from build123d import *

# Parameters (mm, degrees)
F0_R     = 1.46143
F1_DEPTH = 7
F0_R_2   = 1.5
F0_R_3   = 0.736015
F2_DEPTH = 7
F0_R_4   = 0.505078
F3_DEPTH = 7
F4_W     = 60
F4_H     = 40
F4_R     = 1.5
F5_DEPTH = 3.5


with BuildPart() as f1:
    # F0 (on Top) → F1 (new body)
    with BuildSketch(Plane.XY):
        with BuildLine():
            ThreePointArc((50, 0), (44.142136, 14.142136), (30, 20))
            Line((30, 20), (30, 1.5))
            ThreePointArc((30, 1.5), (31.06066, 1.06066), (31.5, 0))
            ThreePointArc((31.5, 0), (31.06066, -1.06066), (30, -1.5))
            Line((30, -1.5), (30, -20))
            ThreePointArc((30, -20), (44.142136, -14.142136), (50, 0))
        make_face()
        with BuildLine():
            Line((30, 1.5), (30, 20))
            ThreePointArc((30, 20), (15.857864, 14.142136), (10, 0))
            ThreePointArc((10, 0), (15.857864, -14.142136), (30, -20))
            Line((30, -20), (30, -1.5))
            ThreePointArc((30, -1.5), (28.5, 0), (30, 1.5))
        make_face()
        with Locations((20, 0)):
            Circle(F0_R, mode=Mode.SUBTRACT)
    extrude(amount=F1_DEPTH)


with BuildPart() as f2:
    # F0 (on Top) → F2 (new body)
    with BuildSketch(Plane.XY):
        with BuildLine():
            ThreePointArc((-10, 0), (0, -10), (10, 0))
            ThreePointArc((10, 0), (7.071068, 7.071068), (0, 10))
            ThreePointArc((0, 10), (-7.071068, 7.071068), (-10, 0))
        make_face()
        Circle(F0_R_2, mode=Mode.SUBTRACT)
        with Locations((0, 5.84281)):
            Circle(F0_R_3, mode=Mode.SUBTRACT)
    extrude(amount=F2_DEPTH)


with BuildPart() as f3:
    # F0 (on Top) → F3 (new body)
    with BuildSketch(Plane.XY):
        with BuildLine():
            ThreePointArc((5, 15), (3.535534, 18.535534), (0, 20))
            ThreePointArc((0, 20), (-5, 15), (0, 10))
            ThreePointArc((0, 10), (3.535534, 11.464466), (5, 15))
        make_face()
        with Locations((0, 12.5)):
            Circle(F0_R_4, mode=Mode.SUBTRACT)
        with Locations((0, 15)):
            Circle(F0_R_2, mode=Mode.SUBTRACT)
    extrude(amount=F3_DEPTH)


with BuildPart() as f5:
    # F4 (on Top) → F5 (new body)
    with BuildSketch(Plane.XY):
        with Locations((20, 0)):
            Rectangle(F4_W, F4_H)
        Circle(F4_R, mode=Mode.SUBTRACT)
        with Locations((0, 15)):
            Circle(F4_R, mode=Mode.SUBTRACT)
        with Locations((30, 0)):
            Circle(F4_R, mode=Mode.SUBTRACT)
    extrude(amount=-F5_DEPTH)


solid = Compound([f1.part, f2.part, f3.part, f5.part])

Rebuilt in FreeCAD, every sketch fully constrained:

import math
import FreeCAD as App
import Part
import Sketcher

V = App.Vector


def add_polygon(sketch, points):
    """Adds a closed chain of lines whose ends are joined by coincident constraints."""
    first, n = sketch.GeometryCount, len(points)
    for a, b in zip(points, points[1:] + points[:1]):
        sketch.addGeometry(Part.LineSegment(App.Vector(*a, 0), App.Vector(*b, 0)), False)
    for i in range(n):
        sketch.addConstraint(Sketcher.Constraint("Coincident", first + i, 2, first + (i + 1) % n, 1))

doc = App.newDocument("Part")
params = doc.addObject("Spreadsheet::Sheet", "Params")
for row, (alias, value) in enumerate([
    ("sketch1_radius", "19.999999 mm"),
    ("sketch1_radius2", "1.500001 mm"),
    ("pad1_length", "7 mm"),
    ("sketch2_diameter", "3 mm"),
    ("sketch2_radius", "10 mm"),
    ("pad2_length", "7 mm"),
    ("sketch3_diameter", "3 mm"),
    ("sketch3_radius", "5 mm"),
    ("pad3_length", "7 mm"),
    ("sketch4_diameter", "3 mm"),
    ("sketch4_width", "60 mm"),
    ("sketch4_height", "40 mm"),
    ("pad4_length", "3.5 mm"),
], start=1):
    params.set(f"A{row}", alias)
    params.set(f"B{row}", "=" + value)
    params.setAlias(f"B{row}", alias)

body = doc.addObject("PartDesign::Body", "Body")

# Sketch on XY plane
sketch1 = doc.addObject("Sketcher::SketchObject", "Sketch")
body.addObject(sketch1)
sketch1.AttachmentSupport = (doc.XY_Plane, [""])
sketch1.MapMode = "FlatFace"
sketch1.addGeometry([
    Part.ArcOfCircle(Part.Circle(V(30.000001, 0.000001, 0), V(0, 0, 1), 19.999999), math.radians(-0.000004), math.radians(90.000004)),  # 0
    Part.ArcOfCircle(Part.Circle(V(29.999999, 0.000001, 0), V(0, 0, 1), 19.999999), math.radians(89.999996), math.radians(180.000004)),  # 1
    Part.ArcOfCircle(Part.Circle(V(29.999999, -0.000001, 0), V(0, 0, 1), 19.999999), math.radians(179.999996), math.radians(270.000004)),  # 2
    Part.ArcOfCircle(Part.Circle(V(30.000001, -0.000001, 0), V(0, 0, 1), 19.999999), math.radians(-90.000004), math.radians(0.000004)),  # 3
    Part.Circle(V(20, 0, 0), V(0, 0, 1), 1.46143),  # 4
    Part.ArcOfCircle(Part.Circle(V(29.999999, -0.000001, 0), V(0, 0, 1), 1.500001), math.radians(0.000022), math.radians(89.999978)),  # 5
    Part.ArcOfCircle(Part.Circle(V(29.999999, 0.000001, 0), V(0, 0, 1), 1.500001), math.radians(-89.999978), math.radians(-0.000022)),  # 6
    Part.ArcOfCircle(Part.Circle(V(30, 0, 0), V(0, 0, 1), 1.5), math.radians(90), math.radians(270)),  # 7
], False)
sketch1.addConstraint([
    Sketcher.Constraint("Tangent", 0, 2, 1, 1),
    Sketcher.Constraint("Tangent", 1, 2, 2, 1),
    Sketcher.Constraint("Tangent", 2, 2, 3, 1),
    Sketcher.Constraint("Tangent", 3, 2, 0, 1),
    Sketcher.Constraint("Tangent", 5, 1, 6, 2),
    Sketcher.Constraint("Tangent", 6, 1, 7, 2),
    Sketcher.Constraint("Tangent", 7, 1, 5, 2),
    Sketcher.Constraint("Coincident", 5, 3, 0, 3),
    Sketcher.Constraint("Equal", 0, 1),
    Sketcher.Constraint("Symmetric", 0, 2, 2, 2, -1),
    Sketcher.Constraint("PointOnObject", 4, 3, -1),
    Sketcher.Constraint("PointOnObject", 1, 2, -1),
    Sketcher.Constraint("PointOnObject", 3, 2, -1),
    Sketcher.Constraint("PointOnObject", 5, 1, -1),
    Sketcher.Constraint("Vertical", 7, 3, 0, 2),
    Sketcher.Constraint("Vertical", 2, 2, 6, 1),
    Sketcher.Constraint("Vertical", 6, 1, 7, 1),
    Sketcher.Constraint("Radius", 0, 19.999999),
    Sketcher.Constraint("Radius", 5, 1.500001),
    Sketcher.Constraint("DistanceX", -1, 1, 0, 3, 30.000001),
    Sketcher.Constraint("DistanceX", -1, 1, 4, 3, 20.0),
    Sketcher.Constraint("Diameter", 4, 2.92286),
])
sketch1.setExpression("Constraints[17]", "Params.sketch1_radius")
sketch1.setExpression("Constraints[18]", "Params.sketch1_radius2")
pad1 = doc.addObject("PartDesign::Pad", "Pad")
body.addObject(pad1)
pad1.Profile = sketch1
pad1.setExpression("Length", "Params.pad1_length")
body2 = doc.addObject("PartDesign::Body", "Body001")

# Sketch on XY plane
sketch2 = doc.addObject("Sketcher::SketchObject", "Sketch001")
body2.addObject(sketch2)
sketch2.AttachmentSupport = (doc.getObject("XY_Plane001"), [""])
sketch2.MapMode = "FlatFace"
sketch2.addGeometry([
    Part.ArcOfCircle(Part.Circle(V(0, 0, 0), V(0, 0, 1), 10), math.radians(180), math.radians(360)),  # 0
    Part.ArcOfCircle(Part.Circle(V(0.000001, 0.000001, 0), V(0, 0, 1), 9.999999), math.radians(-0.000004), math.radians(90.000004)),  # 1
    Part.ArcOfCircle(Part.Circle(V(-0.000001, 0.000001, 0), V(0, 0, 1), 9.999999), math.radians(89.999996), math.radians(180.000004)),  # 2
    Part.Circle(V(0, 0, 0), V(0, 0, 1), 1.5),  # 3
    Part.Circle(V(0, 5.84281, 0), V(0, 0, 1), 0.736015),  # 4
], False)
sketch2.addConstraint([
    Sketcher.Constraint("Tangent", 0, 2, 1, 1),
    Sketcher.Constraint("Tangent", 1, 2, 2, 1),
    Sketcher.Constraint("Tangent", 2, 2, 0, 1),
    Sketcher.Constraint("Coincident", 0, 3, -1, 1),
    Sketcher.Constraint("Coincident", 3, 3, -1, 1),
    Sketcher.Constraint("PointOnObject", 4, 3, -2),
    Sketcher.Constraint("PointOnObject", 0, 2, -1),
    Sketcher.Constraint("PointOnObject", 1, 2, -2),
    Sketcher.Constraint("PointOnObject", 2, 2, -1),
    Sketcher.Constraint("Diameter", 3, 3.0),
    Sketcher.Constraint("Radius", 0, 10.0),
    Sketcher.Constraint("Diameter", 4, 1.47203),
    Sketcher.Constraint("DistanceY", -1, 1, 4, 3, 5.84281),
])
sketch2.setExpression("Constraints[9]", "Params.sketch2_diameter")
sketch2.setExpression("Constraints[10]", "Params.sketch2_radius")
pad2 = doc.addObject("PartDesign::Pad", "Pad001")
body2.addObject(pad2)
pad2.Profile = sketch2
pad2.setExpression("Length", "Params.pad2_length")
body3 = doc.addObject("PartDesign::Body", "Body002")

# Sketch on XY plane
sketch3 = doc.addObject("Sketcher::SketchObject", "Sketch002")
body3.addObject(sketch3)
sketch3.AttachmentSupport = (doc.getObject("XY_Plane002"), [""])
sketch3.MapMode = "FlatFace"
sketch3.addGeometry([
    Part.ArcOfCircle(Part.Circle(V(0, 15, 0), V(0, 0, 1), 5), math.radians(-0.000004), math.radians(90.000004)),  # 0
    Part.ArcOfCircle(Part.Circle(V(0, 15, 0), V(0, 0, 1), 5), math.radians(90), math.radians(270)),  # 1
    Part.ArcOfCircle(Part.Circle(V(0, 15, 0), V(0, 0, 1), 5), math.radians(-90.000004), math.radians(0.000004)),  # 2
    Part.Circle(V(0, 12.5, 0), V(0, 0, 1), 0.505078),  # 3
    Part.Circle(V(0, 15, 0), V(0, 0, 1), 1.5),  # 4
], False)
sketch3.addConstraint([
    Sketcher.Constraint("Tangent", 0, 2, 1, 1),
    Sketcher.Constraint("Tangent", 1, 2, 2, 1),
    Sketcher.Constraint("Tangent", 2, 2, 0, 1),
    Sketcher.Constraint("Coincident", 4, 3, 0, 3),
    Sketcher.Constraint("PointOnObject", 0, 3, -2),
    Sketcher.Constraint("PointOnObject", 3, 3, -2),
    Sketcher.Constraint("PointOnObject", 0, 2, -2),
    Sketcher.Constraint("PointOnObject", 1, 2, -2),
    Sketcher.Constraint("Horizontal", 4, 3, 2, 2),
    Sketcher.Constraint("Diameter", 4, 3.0),
    Sketcher.Constraint("Radius", 0, 5.0),
    Sketcher.Constraint("DistanceY", -1, 1, 0, 3, 15.0),
    Sketcher.Constraint("DistanceY", -1, 1, 3, 3, 12.5),
    Sketcher.Constraint("Diameter", 3, 1.010156),
])
sketch3.setExpression("Constraints[9]", "Params.sketch3_diameter")
sketch3.setExpression("Constraints[10]", "Params.sketch3_radius")
pad3 = doc.addObject("PartDesign::Pad", "Pad002")
body3.addObject(pad3)
pad3.Profile = sketch3
pad3.setExpression("Length", "Params.pad3_length")
body4 = doc.addObject("PartDesign::Body", "Body003")

# Sketch on XY plane
sketch4 = doc.addObject("Sketcher::SketchObject", "Sketch003")
body4.addObject(sketch4)
sketch4.AttachmentSupport = (doc.getObject("XY_Plane003"), [""])
sketch4.MapMode = "FlatFace"
add_polygon(sketch4, [(-10, 20), (-10, -20), (50, -20), (50, 20)])  # lines 0-3
sketch4.addGeometry(Part.Circle(V(0, 0, 0), V(0, 0, 1), 1.5), False)  # 4
sketch4.addGeometry(Part.Circle(V(30, 0, 0), V(0, 0, 1), 1.5), False)  # 5
sketch4.addGeometry(Part.Circle(V(0, 15, 0), V(0, 0, 1), 1.5), False)  # 6
sketch4.addConstraint([
    Sketcher.Constraint("Vertical", 0),
    Sketcher.Constraint("Horizontal", 1),
    Sketcher.Constraint("Vertical", 2),
    Sketcher.Constraint("Horizontal", 3),
    Sketcher.Constraint("Coincident", 4, 3, -1, 1),
    Sketcher.Constraint("Equal", 4, 5),
    Sketcher.Constraint("Equal", 5, 6),
    Sketcher.Constraint("PointOnObject", 5, 3, -1),
    Sketcher.Constraint("PointOnObject", 6, 3, -2),
    Sketcher.Constraint("Diameter", 4, 3.0),
    Sketcher.Constraint("DistanceX", 1, 1, 1, 2, 60.0),
    Sketcher.Constraint("DistanceY", 0, 2, 0, 1, 40.0),
    Sketcher.Constraint("DistanceX", -1, 1, 5, 3, 30.0),
    Sketcher.Constraint("DistanceY", -1, 1, 6, 3, 15.0),
    Sketcher.Constraint("DistanceX", 0, 2, -1, 1, 10.0),
    Sketcher.Constraint("DistanceY", 0, 2, -1, 1, 20.0),
])
sketch4.setExpression("Constraints[13]", "Params.sketch4_diameter")
sketch4.setExpression("Constraints[14]", "Params.sketch4_width")
sketch4.setExpression("Constraints[15]", "Params.sketch4_height")
pad4 = doc.addObject("PartDesign::Pad", "Pad003")
body4.addObject(pad4)
pad4.Profile = sketch4
pad4.setExpression("Length", "Params.pad4_length")
pad4.Reversed = True

doc.recompute()
